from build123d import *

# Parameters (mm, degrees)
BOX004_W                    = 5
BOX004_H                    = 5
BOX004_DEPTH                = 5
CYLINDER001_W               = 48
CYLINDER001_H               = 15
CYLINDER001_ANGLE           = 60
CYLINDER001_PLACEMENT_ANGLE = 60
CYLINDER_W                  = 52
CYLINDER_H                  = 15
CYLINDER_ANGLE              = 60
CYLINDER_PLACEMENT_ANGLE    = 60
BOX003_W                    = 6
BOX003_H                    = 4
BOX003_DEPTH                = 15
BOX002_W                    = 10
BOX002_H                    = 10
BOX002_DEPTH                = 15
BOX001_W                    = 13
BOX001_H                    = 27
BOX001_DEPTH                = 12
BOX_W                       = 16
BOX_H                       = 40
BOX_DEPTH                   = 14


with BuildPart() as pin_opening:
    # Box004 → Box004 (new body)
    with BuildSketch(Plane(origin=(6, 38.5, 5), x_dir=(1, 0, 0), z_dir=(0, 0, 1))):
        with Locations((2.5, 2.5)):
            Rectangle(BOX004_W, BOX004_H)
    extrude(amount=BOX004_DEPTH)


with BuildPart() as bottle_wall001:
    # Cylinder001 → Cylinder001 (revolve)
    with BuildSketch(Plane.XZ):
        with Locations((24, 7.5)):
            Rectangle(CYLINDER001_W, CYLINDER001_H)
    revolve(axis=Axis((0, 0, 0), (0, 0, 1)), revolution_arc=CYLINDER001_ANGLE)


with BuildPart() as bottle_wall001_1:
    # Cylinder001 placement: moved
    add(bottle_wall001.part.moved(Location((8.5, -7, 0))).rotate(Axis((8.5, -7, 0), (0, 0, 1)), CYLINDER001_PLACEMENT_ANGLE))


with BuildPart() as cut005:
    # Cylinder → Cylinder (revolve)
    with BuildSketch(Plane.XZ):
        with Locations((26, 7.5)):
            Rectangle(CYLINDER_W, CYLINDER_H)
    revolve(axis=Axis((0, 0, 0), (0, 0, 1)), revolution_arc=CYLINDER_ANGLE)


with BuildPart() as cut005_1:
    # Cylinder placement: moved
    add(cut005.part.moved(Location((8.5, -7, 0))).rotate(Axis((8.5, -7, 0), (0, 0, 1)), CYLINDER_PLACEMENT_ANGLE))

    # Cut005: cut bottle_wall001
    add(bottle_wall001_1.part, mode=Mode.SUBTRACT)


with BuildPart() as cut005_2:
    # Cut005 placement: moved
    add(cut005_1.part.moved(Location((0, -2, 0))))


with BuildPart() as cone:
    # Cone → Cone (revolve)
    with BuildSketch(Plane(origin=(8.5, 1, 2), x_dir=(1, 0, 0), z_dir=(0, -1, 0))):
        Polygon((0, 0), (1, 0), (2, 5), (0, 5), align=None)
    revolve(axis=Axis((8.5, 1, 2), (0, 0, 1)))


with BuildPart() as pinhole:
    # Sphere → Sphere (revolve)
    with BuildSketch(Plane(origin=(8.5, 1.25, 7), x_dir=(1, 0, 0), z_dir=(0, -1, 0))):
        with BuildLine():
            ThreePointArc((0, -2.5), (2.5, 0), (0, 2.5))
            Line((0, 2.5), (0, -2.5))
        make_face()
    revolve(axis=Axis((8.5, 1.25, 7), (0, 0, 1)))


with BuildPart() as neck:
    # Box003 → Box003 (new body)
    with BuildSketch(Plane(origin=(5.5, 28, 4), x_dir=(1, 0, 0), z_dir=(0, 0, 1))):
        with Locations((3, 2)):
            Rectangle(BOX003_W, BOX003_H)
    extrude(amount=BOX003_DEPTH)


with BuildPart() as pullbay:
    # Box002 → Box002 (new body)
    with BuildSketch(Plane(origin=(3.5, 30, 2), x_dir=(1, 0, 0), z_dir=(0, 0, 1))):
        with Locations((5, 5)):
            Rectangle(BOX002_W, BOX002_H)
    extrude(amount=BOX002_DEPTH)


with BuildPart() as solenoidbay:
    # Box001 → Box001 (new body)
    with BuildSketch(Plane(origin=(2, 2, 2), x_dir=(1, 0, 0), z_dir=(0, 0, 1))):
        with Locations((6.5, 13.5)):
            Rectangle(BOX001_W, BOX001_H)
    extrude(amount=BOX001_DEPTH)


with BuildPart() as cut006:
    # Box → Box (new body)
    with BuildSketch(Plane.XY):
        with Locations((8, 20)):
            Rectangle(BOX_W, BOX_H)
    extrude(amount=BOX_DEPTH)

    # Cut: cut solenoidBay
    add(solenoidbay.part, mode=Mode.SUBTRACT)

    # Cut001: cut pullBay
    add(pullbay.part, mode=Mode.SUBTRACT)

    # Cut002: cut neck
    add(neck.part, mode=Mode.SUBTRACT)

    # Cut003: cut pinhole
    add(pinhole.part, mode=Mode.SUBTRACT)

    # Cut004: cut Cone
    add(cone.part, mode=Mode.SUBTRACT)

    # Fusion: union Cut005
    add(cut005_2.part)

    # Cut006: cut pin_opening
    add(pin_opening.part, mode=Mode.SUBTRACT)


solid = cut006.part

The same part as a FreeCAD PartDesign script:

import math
import FreeCAD as App
import Part
import Sketcher

doc = App.newDocument("Part")
body = doc.addObject("PartDesign::Body", "Body")

# Sketch on XY plane
sketch1 = doc.addObject("Sketcher::SketchObject", "Sketch")
body.addObject(sketch1)
sketch1.AttachmentSupport = (doc.XY_Plane, [""])
sketch1.MapMode = "FlatFace"
sketch1.AttachmentOffset = App.Placement(App.Vector(0, 0, 5), App.Rotation())
sketch1.addGeometry([
    Part.LineSegment(App.Vector(6, 44, 0), App.Vector(6, 38, 0)),
    Part.LineSegment(App.Vector(6, 38, 0), App.Vector(11, 38, 0)),
    Part.LineSegment(App.Vector(11, 38, 0), App.Vector(11, 44, 0)),
    Part.LineSegment(App.Vector(11, 44, 0), App.Vector(6, 44, 0)),
], False)
sketch1.addConstraint([
    Sketcher.Constraint("Coincident", 0, 2, 1, 1),
    Sketcher.Constraint("Coincident", 1, 2, 2, 1),
    Sketcher.Constraint("Coincident", 2, 2, 3, 1),
    Sketcher.Constraint("Coincident", 3, 2, 0, 1),
    Sketcher.Constraint("Vertical", 0),
    Sketcher.Constraint("Horizontal", 1),
    Sketcher.Constraint("Vertical", 2),
    Sketcher.Constraint("Horizontal", 3),
    Sketcher.Constraint("Equal", 3, 0),
    Sketcher.Constraint("DistanceX", 1, 1, 1, 2, 5.0),
    Sketcher.Constraint("DistanceX", -1, 1, 0, 2, 6.0),
    Sketcher.Constraint("DistanceY", -1, 1, 0, 2, 38.5),
])
pad1 = doc.addObject("PartDesign::Pad", "Pad")
body.addObject(pad1)
pad1.Profile = sketch1
pad1.Length = 5
body2 = doc.addObject("PartDesign::Body", "Body001")

# Sketch on XZ plane
sketch2 = doc.addObject("Sketcher::SketchObject", "Sketch001")
body2.addObject(sketch2)
sketch2.AttachmentSupport = (doc.getObject("XZ_Plane001"), [""])
sketch2.MapMode = "FlatFace"
sketch2.addGeometry([
    Part.LineSegment(App.Vector(0, 15, 0), App.Vector(0, 0, 0)),
    Part.LineSegment(App.Vector(0, 0, 0), App.Vector(48, 0, 0)),
    Part.LineSegment(App.Vector(48, 0, 0), App.Vector(48, 15, 0)),
    Part.LineSegment(App.Vector(48, 15, 0), App.Vector(0, 15, 0)),
], False)
sketch2.addConstraint([
    Sketcher.Constraint("Coincident", 0, 2, 1, 1),
    Sketcher.Constraint("Coincident", 1, 2, 2, 1),
    Sketcher.Constraint("Coincident", 2, 2, 3, 1),
    Sketcher.Constraint("Coincident", 3, 2, 0, 1),
    Sketcher.Constraint("Vertical", 0),
    Sketcher.Constraint("Horizontal", 1),
    Sketcher.Constraint("Vertical", 2),
    Sketcher.Constraint("Horizontal", 3),
    Sketcher.Constraint("Coincident", 0, 2, -1, 1),
    Sketcher.Constraint("DistanceX", 1, 1, 1, 2, 48.0),
    Sketcher.Constraint("DistanceY", 0, 2, 0, 1, 15.0),
])
revolution = doc.addObject("PartDesign::Revolution", "Revolution")
body2.addObject(revolution)
revolution.Profile = sketch2
revolution.ReferenceAxis = (sketch2, ["V_Axis"])
revolution.Angle = 60
body3 = doc.addObject("PartDesign::Body", "Body002")
doc.recompute()

body2.Placement = App.Placement(App.Vector(8.5, -7, 0), App.Rotation(App.Vector(0, 0, 1), 60))
boolean = doc.addObject("PartDesign::Boolean", "Boolean")
body3.addObject(boolean)
boolean.Type = "Fuse"
boolean.addObjects([body2])
body4 = doc.addObject("PartDesign::Body", "Body003")

# Sketch on XZ plane
sketch3 = doc.addObject("Sketcher::SketchObject", "Sketch002")
body4.addObject(sketch3)
sketch3.AttachmentSupport = (doc.getObject("XZ_Plane003"), [""])
sketch3.MapMode = "FlatFace"
sketch3.addGeometry([
    Part.LineSegment(App.Vector(0, 15, 0), App.Vector(0, 0, 0)),
    Part.LineSegment(App.Vector(0, 0, 0), App.Vector(52, 0, 0)),
    Part.LineSegment(App.Vector(52, 0, 0), App.Vector(52, 15, 0)),
    Part.LineSegment(App.Vector(52, 15, 0), App.Vector(0, 15, 0)),
], False)
sketch3.addConstraint([
    Sketcher.Constraint("Coincident", 0, 2, 1, 1),
    Sketcher.Constraint("Coincident", 1, 2, 2, 1),
    Sketcher.Constraint("Coincident", 2, 2, 3, 1),
    Sketcher.Constraint("Coincident", 3, 2, 0, 1),
    Sketcher.Constraint("Vertical", 0),
    Sketcher.Constraint("Horizontal", 1),
    Sketcher.Constraint("Vertical", 2),
    Sketcher.Constraint("Horizontal", 3),
    Sketcher.Constraint("Coincident", 0, 2, -1, 1),
    Sketcher.Constraint("DistanceX", 1, 1, 1, 2, 52.0),
    Sketcher.Constraint("DistanceY", 0, 2, 0, 1, 15.0),
])
revolution2 = doc.addObject("PartDesign::Revolution", "Revolution001")
body4.addObject(revolution2)
revolution2.Profile = sketch3
revolution2.ReferenceAxis = (sketch3, ["V_Axis"])
revolution2.Angle = 60
body5 = doc.addObject("PartDesign::Body", "Body004")
doc.recompute()

body4.Placement = App.Placement(App.Vector(8.5, -7, 0), App.Rotation(App.Vector(0, 0, 1), 60))
boolean2 = doc.addObject("PartDesign::Boolean", "Boolean001")
body5.addObject(boolean2)
boolean2.Type = "Fuse"
boolean2.addObjects([body4])
doc.recompute()

boolean3 = doc.addObject("PartDesign::Boolean", "Boolean002")
body5.addObject(boolean3)
boolean3.Type = "Cut"
boolean3.addObjects([body3])
body6 = doc.addObject("PartDesign::Body", "Body005")
doc.recompute()

body5.Placement = App.Placement(App.Vector(0, -2, 0), App.Rotation(App.Vector(0, 0, 1), 0))
boolean4 = doc.addObject("PartDesign::Boolean", "Boolean003")
body6.addObject(boolean4)
boolean4.Type = "Fuse"
boolean4.addObjects([body5])
body7 = doc.addObject("PartDesign::Body", "Body006")

# Sketch on XZ plane
sketch4 = doc.addObject("Sketcher::SketchObject", "Sketch003")
body7.addObject(sketch4)
sketch4.AttachmentSupport = (doc.getObject("XZ_Plane006"), [""])
sketch4.MapMode = "FlatFace"
sketch4.AttachmentOffset = App.Placement(App.Vector(0, 0, -1), App.Rotation())
sketch4.addGeometry([
    Part.LineSegment(App.Vector(8.5, 2, 0), App.Vector(9.5, 2, 0)),
    Part.LineSegment(App.Vector(9.5, 2, 0), App.Vector(10.5, 7, 0)),
    Part.LineSegment(App.Vector(10.5, 7, 0), App.Vector(8.5, 7, 0)),
    Part.LineSegment(App.Vector(8.5, 7, 0), App.Vector(8.5, 2, 0)),
], False)
sketch4.addGeometry(Part.LineSegment(App.Vector(8.5, 2, 0), App.Vector(8.5, 7, 0)), True)  # axis
sketch4.addConstraint([
    Sketcher.Constraint("Coincident", 0, 2, 1, 1),
    Sketcher.Constraint("Coincident", 1, 2, 2, 1),
    Sketcher.Constraint("Coincident", 2, 2, 3, 1),
    Sketcher.Constraint("Coincident", 3, 2, 0, 1),
    Sketcher.Constraint("Horizontal", 0),
    Sketcher.Constraint("Horizontal", 2),
    Sketcher.Constraint("Vertical", 3),
    Sketcher.Constraint("Vertical", 4),
    Sketcher.Constraint("Coincident", 4, 1, 3, 2),
    Sketcher.Constraint("Horizontal", 1, 2, 4, 2),
    Sketcher.Constraint("DistanceX", 0, 1, 0, 2, 1.0),
    Sketcher.Constraint("DistanceX", 2, 2, 2, 1, 2.0),
    Sketcher.Constraint("DistanceY", 3, 2, 3, 1, 5.0),
    Sketcher.Constraint("DistanceY", -1, 1, 0, 2, 2.0),
    Sketcher.Constraint("DistanceX", -1, 1, 0, 2, 9.5),
])
revolution3 = doc.addObject("PartDesign::Revolution", "Revolution002")
body7.addObject(revolution3)
revolution3.Profile = sketch4
revolution3.ReferenceAxis = (sketch4, ["Axis0"])
revolution3.Angle = 360
body8 = doc.addObject("PartDesign::Body", "Body007")

# Sketch on XZ plane
sketch5 = doc.addObject("Sketcher::SketchObject", "Sketch004")
body8.addObject(sketch5)
sketch5.AttachmentSupport = (doc.getObject("XZ_Plane007"), [""])
sketch5.MapMode = "FlatFace"
sketch5.AttachmentOffset = App.Placement(App.Vector(0, 0, -1.25), App.Rotation())
sketch5.addGeometry([
    Part.ArcOfCircle(Part.Circle(App.Vector(8.5, 7, 0), App.Vector(0, 0, 1), 2.5), math.radians(-90), math.radians(90)),
    Part.LineSegment(App.Vector(8.5, 9.5, 0), App.Vector(8.5, 4.5, 0)),
], False)
sketch5.addGeometry(Part.LineSegment(App.Vector(8.5, 4.5, 0), App.Vector(8.5, 9.5, 0)), True)  # axis
sketch5.addConstraint([
    Sketcher.Constraint("Coincident", 0, 1, 1, 2),
    Sketcher.Constraint("Coincident", 1, 1, 0, 2),
    Sketcher.Constraint("Vertical", 1),
    Sketcher.Constraint("Vertical", 2),
    Sketcher.Constraint("Coincident", 2, 1, 0, 1),
    Sketcher.Constraint("Equal", 1, 2),
    Sketcher.Constraint("Radius", 0, 2.5),
    Sketcher.Constraint("DistanceY", -1, 1, 0, 3, 7.0),
    Sketcher.Constraint("DistanceX", -1, 1, 0, 3, 8.5),
    Sketcher.Constraint("DistanceX", -1, 1, 0, 1, 8.5),
])
revolution4 = doc.addObject("PartDesign::Revolution", "Revolution003")
body8.addObject(revolution4)
revolution4.Profile = sketch5
revolution4.ReferenceAxis = (sketch5, ["Axis0"])
revolution4.Angle = 360
body9 = doc.addObject("PartDesign::Body", "Body008")

# Sketch on XY plane
sketch6 = doc.addObject("Sketcher::SketchObject", "Sketch005")
body9.addObject(sketch6)
sketch6.AttachmentSupport = (doc.getObject("XY_Plane008"), [""])
sketch6.MapMode = "FlatFace"
sketch6.AttachmentOffset = App.Placement(App.Vector(0, 0, 4), App.Rotation())
sketch6.addGeometry([
    Part.LineSegment(App.Vector(5.5, 32, 0), App.Vector(5.5, 28, 0)),
    Part.LineSegment(App.Vector(5.5, 28, 0), App.Vector(11.5, 28, 0)),
    Part.LineSegment(App.Vector(11.5, 28, 0), App.Vector(11.5, 32, 0)),
    Part.LineSegment(App.Vector(11.5, 32, 0), App.Vector(5.5, 32, 0)),
], False)
sketch6.addConstraint([
    Sketcher.Constraint("Coincident", 0, 2, 1, 1),
    Sketcher.Constraint("Coincident", 1, 2, 2, 1),
    Sketcher.Constraint("Coincident", 2, 2, 3, 1),
    Sketcher.Constraint("Coincident", 3, 2, 0, 1),
    Sketcher.Constraint("Vertical", 0),
    Sketcher.Constraint("Horizontal", 1),
    Sketcher.Constraint("Vertical", 2),
    Sketcher.Constraint("Horizontal", 3),
    Sketcher.Constraint("DistanceX", 1, 1, 1, 2, 6.0),
    Sketcher.Constraint("DistanceY", 0, 2, 0, 1, 4.0),
    Sketcher.Constraint("DistanceY", -1, 1, 0, 2, 28.0),
    Sketcher.Constraint("DistanceX", -1, 1, 0, 2, 5.5),
])
pad2 = doc.addObject("PartDesign::Pad", "Pad001")
body9.addObject(pad2)
pad2.Profile = sketch6
pad2.Length = 15
body10 = doc.addObject("PartDesign::Body", "Body009")

# Sketch on XY plane
sketch7 = doc.addObject("Sketcher::SketchObject", "Sketch006")
body10.addObject(sketch7)
sketch7.AttachmentSupport = (doc.getObject("XY_Plane009"), [""])
sketch7.MapMode = "FlatFace"
sketch7.AttachmentOffset = App.Placement(App.Vector(0, 0, 2), App.Rotation())
sketch7.addGeometry([
    Part.LineSegment(App.Vector(4, 40, 0), App.Vector(4, 30, 0)),
    Part.LineSegment(App.Vector(4, 30, 0), App.Vector(14, 30, 0)),
    Part.LineSegment(App.Vector(14, 30, 0), App.Vector(14, 40, 0)),
    Part.LineSegment(App.Vector(14, 40, 0), App.Vector(4, 40, 0)),
], False)
sketch7.addConstraint([
    Sketcher.Constraint("Coincident", 0, 2, 1, 1),
    Sketcher.Constraint("Coincident", 1, 2, 2, 1),
    Sketcher.Constraint("Coincident", 2, 2, 3, 1),
    Sketcher.Constraint("Coincident", 3, 2, 0, 1),
    Sketcher.Constraint("Vertical", 0),
    Sketcher.Constraint("Horizontal", 1),
    Sketcher.Constraint("Vertical", 2),
    Sketcher.Constraint("Horizontal", 3),
    Sketcher.Constraint("Equal", 3, 0),
    Sketcher.Constraint("DistanceX", 1, 1, 1, 2, 10.0),
    Sketcher.Constraint("DistanceY", -1, 1, 0, 2, 30.0),
    Sketcher.Constraint("DistanceX", -1, 1, 0, 2, 3.5),
])
pad3 = doc.addObject("PartDesign::Pad", "Pad002")
body10.addObject(pad3)
pad3.Profile = sketch7
pad3.Length = 15
body11 = doc.addObject("PartDesign::Body", "Body010")

# Sketch on XY plane
sketch8 = doc.addObject("Sketcher::SketchObject", "Sketch007")
body11.addObject(sketch8)
sketch8.AttachmentSupport = (doc.getObject("XY_Plane010"), [""])
sketch8.MapMode = "FlatFace"
sketch8.AttachmentOffset = App.Placement(App.Vector(0, 0, 2), App.Rotation())
sketch8.addGeometry([
    Part.LineSegment(App.Vector(2, 29, 0), App.Vector(2, 2, 0)),
    Part.LineSegment(App.Vector(2, 2, 0), App.Vector(15, 2, 0)),
    Part.LineSegment(App.Vector(15, 2, 0), App.Vector(15, 29, 0)),
    Part.LineSegment(App.Vector(15, 29, 0), App.Vector(2, 29, 0)),
], False)
sketch8.addConstraint([
    Sketcher.Constraint("Coincident", 0, 2, 1, 1),
    Sketcher.Constraint("Coincident", 1, 2, 2, 1),
    Sketcher.Constraint("Coincident", 2, 2, 3, 1),
    Sketcher.Constraint("Coincident", 3, 2, 0, 1),
    Sketcher.Constraint("Vertical", 0),
    Sketcher.Constraint("Horizontal", 1),
    Sketcher.Constraint("Vertical", 2),
    Sketcher.Constraint("Horizontal", 3),
    Sketcher.Constraint("DistanceX", 1, 1, 1, 2, 13.0),
    Sketcher.Constraint("DistanceY", 0, 2, 0, 1, 27.0),
    Sketcher.Constraint("DistanceX", -1, 1, 0, 2, 2.0),
    Sketcher.Constraint("DistanceY", -1, 1, 0, 2, 2.0),
])
pad4 = doc.addObject("PartDesign::Pad", "Pad003")
body11.addObject(pad4)
pad4.Profile = sketch8
pad4.Length = 12
body12 = doc.addObject("PartDesign::Body", "Body011")

# Sketch on XY plane
sketch9 = doc.addObject("Sketcher::SketchObject", "Sketch008")
body12.addObject(sketch9)
sketch9.AttachmentSupport = (doc.getObject("XY_Plane011"), [""])
sketch9.MapMode = "FlatFace"
sketch9.addGeometry([
    Part.LineSegment(App.Vector(0, 40, 0), App.Vector(0, 0, 0)),
    Part.LineSegment(App.Vector(0, 0, 0), App.Vector(16, 0, 0)),
    Part.LineSegment(App.Vector(16, 0, 0), App.Vector(16, 40, 0)),
    Part.LineSegment(App.Vector(16, 40, 0), App.Vector(0, 40, 0)),
], False)
sketch9.addConstraint([
    Sketcher.Constraint("Coincident", 0, 2, 1, 1),
    Sketcher.Constraint("Coincident", 1, 2, 2, 1),
    Sketcher.Constraint("Coincident", 2, 2, 3, 1),
    Sketcher.Constraint("Coincident", 3, 2, 0, 1),
    Sketcher.Constraint("Vertical", 0),
    Sketcher.Constraint("Horizontal", 1),
    Sketcher.Constraint("Vertical", 2),
    Sketcher.Constraint("Horizontal", 3),
    Sketcher.Constraint("Coincident", 0, 2, -1, 1),
    Sketcher.Constraint("DistanceX", 1, 1, 1, 2, 16.0),
    Sketcher.Constraint("DistanceY", 0, 2, 0, 1, 40.0),
])
pad5 = doc.addObject("PartDesign::Pad", "Pad004")
body12.addObject(pad5)
pad5.Profile = sketch9
pad5.Length = 14
doc.recompute()

boolean5 = doc.addObject("PartDesign::Boolean", "Boolean004")
body12.addObject(boolean5)
boolean5.Type = "Cut"
boolean5.addObjects([body11])
doc.recompute()

boolean6 = doc.addObject("PartDesign::Boolean", "Boolean005")
body12.addObject(boolean6)
boolean6.Type = "Cut"
boolean6.addObjects([body10])
doc.recompute()

boolean7 = doc.addObject("PartDesign::Boolean", "Boolean006")
body12.addObject(boolean7)
boolean7.Type = "Cut"
boolean7.addObjects([body9])
doc.recompute()

boolean8 = doc.addObject("PartDesign::Boolean", "Boolean007")
body12.addObject(boolean8)
boolean8.Type = "Cut"
boolean8.addObjects([body8])
doc.recompute()

boolean9 = doc.addObject("PartDesign::Boolean", "Boolean008")
body12.addObject(boolean9)
boolean9.Type = "Cut"
boolean9.addObjects([body7])
doc.recompute()

boolean10 = doc.addObject("PartDesign::Boolean", "Boolean009")
body12.addObject(boolean10)
boolean10.Type = "Fuse"
boolean10.addObjects([body6])
doc.recompute()

boolean11 = doc.addObject("PartDesign::Boolean", "Boolean010")
body12.addObject(boolean11)
boolean11.Type = "Cut"
boolean11.addObjects([body])

doc.recompute()
